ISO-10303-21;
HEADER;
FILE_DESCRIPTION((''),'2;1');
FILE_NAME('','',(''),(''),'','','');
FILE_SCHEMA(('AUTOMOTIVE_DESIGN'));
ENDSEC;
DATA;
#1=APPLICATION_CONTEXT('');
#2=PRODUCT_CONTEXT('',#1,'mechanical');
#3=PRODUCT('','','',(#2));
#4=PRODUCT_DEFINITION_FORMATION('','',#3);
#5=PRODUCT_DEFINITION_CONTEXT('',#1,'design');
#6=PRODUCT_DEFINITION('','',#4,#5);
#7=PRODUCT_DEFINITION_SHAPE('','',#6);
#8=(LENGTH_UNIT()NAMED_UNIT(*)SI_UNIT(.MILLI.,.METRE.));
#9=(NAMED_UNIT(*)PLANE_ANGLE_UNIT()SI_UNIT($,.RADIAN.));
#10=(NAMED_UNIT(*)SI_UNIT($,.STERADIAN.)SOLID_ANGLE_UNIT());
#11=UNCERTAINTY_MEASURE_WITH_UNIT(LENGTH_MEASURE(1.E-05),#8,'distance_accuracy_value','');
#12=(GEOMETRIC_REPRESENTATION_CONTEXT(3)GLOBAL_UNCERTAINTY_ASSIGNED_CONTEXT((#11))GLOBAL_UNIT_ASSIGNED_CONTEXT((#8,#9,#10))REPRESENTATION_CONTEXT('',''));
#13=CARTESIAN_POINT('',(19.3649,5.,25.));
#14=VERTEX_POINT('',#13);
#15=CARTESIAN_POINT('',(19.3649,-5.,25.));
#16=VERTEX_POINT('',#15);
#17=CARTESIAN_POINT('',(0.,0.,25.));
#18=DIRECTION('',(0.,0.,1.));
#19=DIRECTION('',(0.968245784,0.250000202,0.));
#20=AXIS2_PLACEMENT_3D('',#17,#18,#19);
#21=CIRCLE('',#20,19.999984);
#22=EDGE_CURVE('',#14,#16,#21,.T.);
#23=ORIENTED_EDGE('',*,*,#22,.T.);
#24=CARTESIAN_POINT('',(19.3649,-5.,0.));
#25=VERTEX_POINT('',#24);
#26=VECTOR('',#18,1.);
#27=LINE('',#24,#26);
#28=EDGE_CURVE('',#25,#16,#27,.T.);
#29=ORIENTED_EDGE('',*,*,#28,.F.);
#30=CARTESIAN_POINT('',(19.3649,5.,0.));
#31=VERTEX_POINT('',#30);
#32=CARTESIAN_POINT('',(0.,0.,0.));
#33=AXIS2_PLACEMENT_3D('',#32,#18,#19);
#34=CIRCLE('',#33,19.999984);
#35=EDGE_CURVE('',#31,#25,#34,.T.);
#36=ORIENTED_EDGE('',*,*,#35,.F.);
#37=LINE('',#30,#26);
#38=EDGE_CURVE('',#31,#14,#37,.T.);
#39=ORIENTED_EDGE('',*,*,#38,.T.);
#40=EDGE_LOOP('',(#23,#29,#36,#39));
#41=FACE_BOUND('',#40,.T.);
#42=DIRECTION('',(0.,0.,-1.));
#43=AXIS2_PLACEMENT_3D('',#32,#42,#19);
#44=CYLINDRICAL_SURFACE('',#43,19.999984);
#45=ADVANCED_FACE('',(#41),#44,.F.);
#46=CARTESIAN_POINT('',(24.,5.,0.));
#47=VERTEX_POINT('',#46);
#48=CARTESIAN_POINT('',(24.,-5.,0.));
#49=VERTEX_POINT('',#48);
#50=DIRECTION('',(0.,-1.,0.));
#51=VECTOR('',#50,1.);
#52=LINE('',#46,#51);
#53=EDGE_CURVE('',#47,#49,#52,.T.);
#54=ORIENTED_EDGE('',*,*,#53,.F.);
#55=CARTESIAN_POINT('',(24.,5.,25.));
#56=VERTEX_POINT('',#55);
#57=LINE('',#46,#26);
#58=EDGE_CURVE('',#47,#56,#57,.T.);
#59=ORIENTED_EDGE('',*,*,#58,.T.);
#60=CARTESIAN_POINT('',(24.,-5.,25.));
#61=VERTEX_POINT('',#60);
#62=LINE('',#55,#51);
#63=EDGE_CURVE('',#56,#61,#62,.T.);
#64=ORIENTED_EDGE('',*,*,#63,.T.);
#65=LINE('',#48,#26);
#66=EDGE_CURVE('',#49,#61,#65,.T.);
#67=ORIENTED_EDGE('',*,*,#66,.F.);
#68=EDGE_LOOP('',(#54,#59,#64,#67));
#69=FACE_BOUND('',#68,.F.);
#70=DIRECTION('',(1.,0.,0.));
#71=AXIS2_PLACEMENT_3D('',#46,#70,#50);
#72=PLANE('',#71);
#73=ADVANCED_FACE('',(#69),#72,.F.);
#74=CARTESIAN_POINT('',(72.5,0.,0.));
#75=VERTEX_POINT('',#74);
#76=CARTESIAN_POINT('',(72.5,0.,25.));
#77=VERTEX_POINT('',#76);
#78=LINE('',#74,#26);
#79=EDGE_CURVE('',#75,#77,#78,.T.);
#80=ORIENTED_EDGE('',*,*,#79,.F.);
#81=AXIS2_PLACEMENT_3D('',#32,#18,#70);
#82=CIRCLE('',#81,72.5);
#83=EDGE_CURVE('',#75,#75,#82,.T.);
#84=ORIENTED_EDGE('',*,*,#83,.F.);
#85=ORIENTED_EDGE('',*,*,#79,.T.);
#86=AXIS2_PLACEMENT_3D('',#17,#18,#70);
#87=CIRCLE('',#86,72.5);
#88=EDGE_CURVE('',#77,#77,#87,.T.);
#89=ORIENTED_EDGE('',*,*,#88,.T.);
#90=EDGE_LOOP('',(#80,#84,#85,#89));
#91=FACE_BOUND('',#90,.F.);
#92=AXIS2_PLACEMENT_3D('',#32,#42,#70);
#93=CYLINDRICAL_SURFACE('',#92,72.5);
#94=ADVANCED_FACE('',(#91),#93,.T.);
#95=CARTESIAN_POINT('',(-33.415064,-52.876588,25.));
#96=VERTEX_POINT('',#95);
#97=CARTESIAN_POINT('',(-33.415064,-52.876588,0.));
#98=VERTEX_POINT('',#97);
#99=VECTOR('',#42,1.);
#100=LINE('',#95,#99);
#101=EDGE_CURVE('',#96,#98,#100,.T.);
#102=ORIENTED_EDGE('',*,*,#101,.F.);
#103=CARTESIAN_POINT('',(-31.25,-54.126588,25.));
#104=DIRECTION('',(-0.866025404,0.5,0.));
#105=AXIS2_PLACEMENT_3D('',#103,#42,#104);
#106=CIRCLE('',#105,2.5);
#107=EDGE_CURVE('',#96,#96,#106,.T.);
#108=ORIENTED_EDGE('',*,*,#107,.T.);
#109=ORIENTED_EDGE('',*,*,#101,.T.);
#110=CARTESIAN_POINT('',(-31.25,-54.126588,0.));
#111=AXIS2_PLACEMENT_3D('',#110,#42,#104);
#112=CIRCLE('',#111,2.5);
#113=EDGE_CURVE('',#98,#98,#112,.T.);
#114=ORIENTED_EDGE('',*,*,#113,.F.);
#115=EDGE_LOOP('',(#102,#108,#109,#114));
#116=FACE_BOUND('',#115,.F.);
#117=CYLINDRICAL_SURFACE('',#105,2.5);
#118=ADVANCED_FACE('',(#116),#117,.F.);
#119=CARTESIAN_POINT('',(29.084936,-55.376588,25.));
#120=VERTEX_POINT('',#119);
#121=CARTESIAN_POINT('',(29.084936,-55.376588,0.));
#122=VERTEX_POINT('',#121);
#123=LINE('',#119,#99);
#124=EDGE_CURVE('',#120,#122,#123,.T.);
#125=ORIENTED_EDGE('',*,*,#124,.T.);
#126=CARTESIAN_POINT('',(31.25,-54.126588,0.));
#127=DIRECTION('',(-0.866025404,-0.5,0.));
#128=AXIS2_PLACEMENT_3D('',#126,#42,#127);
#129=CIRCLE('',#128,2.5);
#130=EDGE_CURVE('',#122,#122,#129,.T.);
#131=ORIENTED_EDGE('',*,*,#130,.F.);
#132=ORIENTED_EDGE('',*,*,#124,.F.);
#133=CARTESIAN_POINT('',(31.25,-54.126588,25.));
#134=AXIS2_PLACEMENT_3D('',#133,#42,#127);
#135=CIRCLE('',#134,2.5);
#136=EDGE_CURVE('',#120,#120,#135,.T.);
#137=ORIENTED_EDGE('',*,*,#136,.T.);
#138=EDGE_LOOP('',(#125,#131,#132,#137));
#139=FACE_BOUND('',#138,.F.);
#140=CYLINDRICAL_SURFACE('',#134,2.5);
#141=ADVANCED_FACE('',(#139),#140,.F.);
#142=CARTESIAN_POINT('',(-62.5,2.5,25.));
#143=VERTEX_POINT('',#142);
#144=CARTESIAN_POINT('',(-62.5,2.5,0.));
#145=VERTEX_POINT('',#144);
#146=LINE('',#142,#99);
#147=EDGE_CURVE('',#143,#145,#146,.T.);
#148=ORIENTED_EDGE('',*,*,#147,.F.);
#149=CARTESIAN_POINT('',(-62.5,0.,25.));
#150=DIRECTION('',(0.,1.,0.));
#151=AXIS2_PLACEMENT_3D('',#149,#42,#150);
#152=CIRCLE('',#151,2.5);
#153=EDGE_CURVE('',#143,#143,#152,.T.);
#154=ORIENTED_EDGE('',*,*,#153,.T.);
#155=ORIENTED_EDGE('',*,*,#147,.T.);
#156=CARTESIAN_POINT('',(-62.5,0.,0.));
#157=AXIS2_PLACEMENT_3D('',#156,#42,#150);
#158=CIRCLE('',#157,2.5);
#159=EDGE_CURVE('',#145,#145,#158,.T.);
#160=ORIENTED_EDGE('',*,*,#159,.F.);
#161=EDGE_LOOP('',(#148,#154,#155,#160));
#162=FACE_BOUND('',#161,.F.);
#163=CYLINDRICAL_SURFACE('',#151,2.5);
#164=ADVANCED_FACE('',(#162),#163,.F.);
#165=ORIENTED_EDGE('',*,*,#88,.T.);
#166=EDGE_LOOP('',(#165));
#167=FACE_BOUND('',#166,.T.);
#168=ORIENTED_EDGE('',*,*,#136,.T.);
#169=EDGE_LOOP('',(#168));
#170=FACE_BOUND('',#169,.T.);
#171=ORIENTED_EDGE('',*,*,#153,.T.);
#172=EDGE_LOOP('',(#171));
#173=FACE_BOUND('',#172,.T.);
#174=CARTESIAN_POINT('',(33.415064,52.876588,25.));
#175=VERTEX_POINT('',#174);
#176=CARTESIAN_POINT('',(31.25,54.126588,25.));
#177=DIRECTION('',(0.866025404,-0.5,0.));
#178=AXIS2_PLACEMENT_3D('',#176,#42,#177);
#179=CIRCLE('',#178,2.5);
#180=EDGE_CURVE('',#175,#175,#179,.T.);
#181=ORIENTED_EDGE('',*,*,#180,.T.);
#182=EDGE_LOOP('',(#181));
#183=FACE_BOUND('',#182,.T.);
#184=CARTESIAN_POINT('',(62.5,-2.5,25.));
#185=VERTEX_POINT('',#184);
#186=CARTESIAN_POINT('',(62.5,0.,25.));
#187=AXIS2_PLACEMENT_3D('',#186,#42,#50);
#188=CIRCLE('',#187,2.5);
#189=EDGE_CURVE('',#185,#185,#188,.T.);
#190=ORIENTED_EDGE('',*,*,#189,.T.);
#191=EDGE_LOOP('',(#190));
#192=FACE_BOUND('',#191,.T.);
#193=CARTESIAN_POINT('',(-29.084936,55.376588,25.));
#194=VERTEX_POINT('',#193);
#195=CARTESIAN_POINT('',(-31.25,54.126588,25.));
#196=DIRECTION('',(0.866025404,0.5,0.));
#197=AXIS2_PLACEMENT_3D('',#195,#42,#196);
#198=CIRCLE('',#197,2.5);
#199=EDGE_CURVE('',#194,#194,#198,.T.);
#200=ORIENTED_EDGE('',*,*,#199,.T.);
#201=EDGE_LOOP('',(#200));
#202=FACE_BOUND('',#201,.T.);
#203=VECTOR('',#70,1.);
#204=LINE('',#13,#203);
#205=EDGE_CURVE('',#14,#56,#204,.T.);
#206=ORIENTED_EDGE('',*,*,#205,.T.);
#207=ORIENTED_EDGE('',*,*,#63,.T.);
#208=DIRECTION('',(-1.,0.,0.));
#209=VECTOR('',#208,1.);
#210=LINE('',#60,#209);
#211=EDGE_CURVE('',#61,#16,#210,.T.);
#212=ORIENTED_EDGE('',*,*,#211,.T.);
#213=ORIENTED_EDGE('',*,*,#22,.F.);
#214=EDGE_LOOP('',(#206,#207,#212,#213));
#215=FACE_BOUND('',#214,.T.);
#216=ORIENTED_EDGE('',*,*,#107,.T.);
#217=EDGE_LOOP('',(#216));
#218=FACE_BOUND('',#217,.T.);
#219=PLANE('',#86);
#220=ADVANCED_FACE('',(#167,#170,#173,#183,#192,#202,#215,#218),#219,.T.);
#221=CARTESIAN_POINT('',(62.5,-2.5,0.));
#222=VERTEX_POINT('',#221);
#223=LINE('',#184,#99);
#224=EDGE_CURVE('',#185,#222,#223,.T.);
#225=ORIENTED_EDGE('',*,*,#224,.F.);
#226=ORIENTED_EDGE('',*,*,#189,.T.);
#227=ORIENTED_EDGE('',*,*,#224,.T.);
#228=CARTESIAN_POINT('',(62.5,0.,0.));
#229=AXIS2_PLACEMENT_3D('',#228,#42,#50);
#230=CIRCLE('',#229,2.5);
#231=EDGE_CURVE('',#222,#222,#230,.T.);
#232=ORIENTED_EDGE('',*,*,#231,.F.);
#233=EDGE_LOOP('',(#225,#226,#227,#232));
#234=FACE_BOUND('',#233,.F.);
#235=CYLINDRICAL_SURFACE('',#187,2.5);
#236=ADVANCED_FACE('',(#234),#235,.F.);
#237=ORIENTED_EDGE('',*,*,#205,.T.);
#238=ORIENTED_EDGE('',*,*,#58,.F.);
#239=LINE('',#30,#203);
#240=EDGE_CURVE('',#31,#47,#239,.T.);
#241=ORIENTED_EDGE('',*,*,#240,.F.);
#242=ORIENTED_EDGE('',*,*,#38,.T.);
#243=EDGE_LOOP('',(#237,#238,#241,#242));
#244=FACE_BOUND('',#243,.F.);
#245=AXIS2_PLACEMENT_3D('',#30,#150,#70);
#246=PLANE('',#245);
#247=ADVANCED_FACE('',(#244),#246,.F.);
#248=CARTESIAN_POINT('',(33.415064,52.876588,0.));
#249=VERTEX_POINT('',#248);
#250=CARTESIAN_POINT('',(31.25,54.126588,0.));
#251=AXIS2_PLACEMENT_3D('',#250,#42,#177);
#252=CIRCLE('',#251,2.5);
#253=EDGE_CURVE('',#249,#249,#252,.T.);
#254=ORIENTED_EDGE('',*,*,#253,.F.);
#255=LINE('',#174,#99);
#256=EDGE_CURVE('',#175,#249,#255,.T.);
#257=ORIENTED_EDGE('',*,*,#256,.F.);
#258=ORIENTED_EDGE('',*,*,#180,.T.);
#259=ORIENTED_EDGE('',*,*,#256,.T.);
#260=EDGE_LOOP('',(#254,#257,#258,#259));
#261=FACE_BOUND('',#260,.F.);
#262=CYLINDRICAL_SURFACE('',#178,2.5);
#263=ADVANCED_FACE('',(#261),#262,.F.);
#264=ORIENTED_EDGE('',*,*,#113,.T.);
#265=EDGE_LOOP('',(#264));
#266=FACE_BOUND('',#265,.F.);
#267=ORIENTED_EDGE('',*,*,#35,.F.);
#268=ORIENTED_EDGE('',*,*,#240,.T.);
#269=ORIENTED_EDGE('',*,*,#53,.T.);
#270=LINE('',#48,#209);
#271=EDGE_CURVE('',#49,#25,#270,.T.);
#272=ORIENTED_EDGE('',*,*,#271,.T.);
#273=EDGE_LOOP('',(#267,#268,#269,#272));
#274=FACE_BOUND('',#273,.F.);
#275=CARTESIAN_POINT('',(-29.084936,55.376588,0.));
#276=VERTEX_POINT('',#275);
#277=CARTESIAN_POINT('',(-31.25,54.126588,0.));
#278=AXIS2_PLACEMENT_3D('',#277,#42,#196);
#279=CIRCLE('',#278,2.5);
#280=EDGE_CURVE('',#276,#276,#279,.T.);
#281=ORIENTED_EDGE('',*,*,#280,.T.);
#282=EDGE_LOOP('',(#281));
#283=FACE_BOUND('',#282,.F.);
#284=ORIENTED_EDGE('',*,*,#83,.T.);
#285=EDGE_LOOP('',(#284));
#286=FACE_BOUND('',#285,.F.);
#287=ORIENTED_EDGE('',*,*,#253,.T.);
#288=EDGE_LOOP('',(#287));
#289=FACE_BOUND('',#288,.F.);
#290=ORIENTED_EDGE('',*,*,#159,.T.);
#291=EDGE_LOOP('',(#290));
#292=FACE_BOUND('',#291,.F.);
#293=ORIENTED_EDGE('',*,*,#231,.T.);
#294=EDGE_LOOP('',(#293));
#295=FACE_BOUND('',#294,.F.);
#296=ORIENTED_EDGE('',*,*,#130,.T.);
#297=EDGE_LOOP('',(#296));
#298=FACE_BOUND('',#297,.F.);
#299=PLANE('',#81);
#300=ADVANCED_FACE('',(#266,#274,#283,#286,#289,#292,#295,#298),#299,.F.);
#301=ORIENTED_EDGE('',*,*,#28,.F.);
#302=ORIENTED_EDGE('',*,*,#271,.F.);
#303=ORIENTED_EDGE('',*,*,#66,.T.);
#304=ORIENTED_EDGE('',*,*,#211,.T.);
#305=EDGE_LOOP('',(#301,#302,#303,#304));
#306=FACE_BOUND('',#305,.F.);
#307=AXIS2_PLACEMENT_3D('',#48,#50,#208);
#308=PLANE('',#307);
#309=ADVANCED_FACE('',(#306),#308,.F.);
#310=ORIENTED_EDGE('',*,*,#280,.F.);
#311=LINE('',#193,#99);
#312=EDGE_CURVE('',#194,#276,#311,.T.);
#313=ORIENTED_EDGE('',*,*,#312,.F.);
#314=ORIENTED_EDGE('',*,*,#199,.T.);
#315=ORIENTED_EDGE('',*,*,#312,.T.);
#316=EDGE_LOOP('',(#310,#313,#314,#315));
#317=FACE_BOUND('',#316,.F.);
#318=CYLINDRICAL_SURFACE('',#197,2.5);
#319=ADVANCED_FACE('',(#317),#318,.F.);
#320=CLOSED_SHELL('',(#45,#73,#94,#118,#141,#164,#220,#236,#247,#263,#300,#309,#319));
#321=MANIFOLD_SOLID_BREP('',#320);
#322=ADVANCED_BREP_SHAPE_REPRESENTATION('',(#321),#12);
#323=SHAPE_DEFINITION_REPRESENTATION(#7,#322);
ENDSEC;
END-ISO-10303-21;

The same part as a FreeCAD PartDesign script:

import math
import FreeCAD as App
import Part
import Sketcher

V = App.Vector
Q = App.Units.Quantity

doc = App.newDocument("Part")
body = doc.addObject("PartDesign::Body", "Body")

# Sketch on XY plane
sketch1 = body.newObject("Sketcher::SketchObject", "Sketch")
sketch1.AttachmentSupport = (doc.getObject("XY_Plane"), [""])
sketch1.MapMode = "FlatFace"
sketch1.addGeometry(Part.Circle(V(0, 0, 0), V(0, 0, 1), 72.5), False)
sketch1.addGeometry(Part.LineSegment(V(19.4, 5, 0), V(24, 5, 0)), False)
sketch1.addGeometry(Part.LineSegment(V(24, 5, 0), V(24, -5, 0)), False)
sketch1.addGeometry(Part.LineSegment(V(24, -5, 0), V(19.4, -5, 0)), False)
sketch1.addGeometry(Part.ArcOfCircle(Part.Circle(V(0, 0, 0), V(0, 0, 1), 20), math.radians(14), math.radians(346)), False)
sketch1.addConstraint(Sketcher.Constraint("Coincident", 1, 2, 2, 1))
sketch1.addConstraint(Sketcher.Constraint("Coincident", 2, 2, 3, 1))
sketch1.addConstraint(Sketcher.Constraint("Coincident", 3, 2, 4, 2))
sketch1.addConstraint(Sketcher.Constraint("Coincident", 4, 1, 1, 1))
sketch1.addConstraint(Sketcher.Constraint("Horizontal", 1))
sketch1.addConstraint(Sketcher.Constraint("Vertical", 2))
sketch1.addConstraint(Sketcher.Constraint("Horizontal", 3))
sketch1.addConstraint(Sketcher.Constraint("Coincident", 0, 3, -1, 1))
sketch1.addConstraint(Sketcher.Constraint("Coincident", 4, 3, -1, 1))
sketch1.addConstraint(Sketcher.Constraint("Vertical", 3, 2, 4, 1))
sketch1.addConstraint(Sketcher.Constraint("Diameter", 0, Q("145 mm")))
sketch1.addConstraint(Sketcher.Constraint("Radius", 4, Q("20 mm")))
sketch1.addConstraint(Sketcher.Constraint("DistanceY", 2, 2, 2, 1, Q("10 mm")))
sketch1.addConstraint(Sketcher.Constraint("DistanceX", -1, 1, 1, 2, Q("24 mm")))
pad1 = body.newObject("PartDesign::Pad", "Pad")
pad1.Profile = sketch1
pad1.Length = 25

# Sketch on XY plane
sketch2 = body.newObject("Sketcher::SketchObject", "Sketch001")
sketch2.AttachmentSupport = (doc.getObject("XY_Plane"), [""])
sketch2.MapMode = "FlatFace"
sketch2.AttachmentOffset = App.Placement(V(0, 0, 25), App.Rotation())
sketch2.addGeometry(Part.Circle(V(62.5, 0, 0), V(0, 0, 1), 2.5), False)
sketch2.addConstraint(Sketcher.Constraint("PointOnObject", 0, 3, -1))
sketch2.addConstraint(Sketcher.Constraint("Diameter", 0, Q("5 mm")))
sketch2.addConstraint(Sketcher.Constraint("DistanceX", -1, 1, 0, 3, Q("62.5 mm")))
doc.recompute()
hole = body.newObject("PartDesign::Hole", "Hole")
hole.Profile = sketch2
hole.ThreadType = "None"
hole.Diameter = 5
hole.DepthType = "ThroughAll"
doc.recompute()

polarpattern = body.newObject("PartDesign::PolarPattern", "PolarPattern")
polarpattern.Originals = [hole]
polarpattern.Axis = (doc.getObject("Z_Axis"), [""])
polarpattern.Angle = 360
polarpattern.Occurrences = 6
body.Tip = polarpattern

doc.recompute()
